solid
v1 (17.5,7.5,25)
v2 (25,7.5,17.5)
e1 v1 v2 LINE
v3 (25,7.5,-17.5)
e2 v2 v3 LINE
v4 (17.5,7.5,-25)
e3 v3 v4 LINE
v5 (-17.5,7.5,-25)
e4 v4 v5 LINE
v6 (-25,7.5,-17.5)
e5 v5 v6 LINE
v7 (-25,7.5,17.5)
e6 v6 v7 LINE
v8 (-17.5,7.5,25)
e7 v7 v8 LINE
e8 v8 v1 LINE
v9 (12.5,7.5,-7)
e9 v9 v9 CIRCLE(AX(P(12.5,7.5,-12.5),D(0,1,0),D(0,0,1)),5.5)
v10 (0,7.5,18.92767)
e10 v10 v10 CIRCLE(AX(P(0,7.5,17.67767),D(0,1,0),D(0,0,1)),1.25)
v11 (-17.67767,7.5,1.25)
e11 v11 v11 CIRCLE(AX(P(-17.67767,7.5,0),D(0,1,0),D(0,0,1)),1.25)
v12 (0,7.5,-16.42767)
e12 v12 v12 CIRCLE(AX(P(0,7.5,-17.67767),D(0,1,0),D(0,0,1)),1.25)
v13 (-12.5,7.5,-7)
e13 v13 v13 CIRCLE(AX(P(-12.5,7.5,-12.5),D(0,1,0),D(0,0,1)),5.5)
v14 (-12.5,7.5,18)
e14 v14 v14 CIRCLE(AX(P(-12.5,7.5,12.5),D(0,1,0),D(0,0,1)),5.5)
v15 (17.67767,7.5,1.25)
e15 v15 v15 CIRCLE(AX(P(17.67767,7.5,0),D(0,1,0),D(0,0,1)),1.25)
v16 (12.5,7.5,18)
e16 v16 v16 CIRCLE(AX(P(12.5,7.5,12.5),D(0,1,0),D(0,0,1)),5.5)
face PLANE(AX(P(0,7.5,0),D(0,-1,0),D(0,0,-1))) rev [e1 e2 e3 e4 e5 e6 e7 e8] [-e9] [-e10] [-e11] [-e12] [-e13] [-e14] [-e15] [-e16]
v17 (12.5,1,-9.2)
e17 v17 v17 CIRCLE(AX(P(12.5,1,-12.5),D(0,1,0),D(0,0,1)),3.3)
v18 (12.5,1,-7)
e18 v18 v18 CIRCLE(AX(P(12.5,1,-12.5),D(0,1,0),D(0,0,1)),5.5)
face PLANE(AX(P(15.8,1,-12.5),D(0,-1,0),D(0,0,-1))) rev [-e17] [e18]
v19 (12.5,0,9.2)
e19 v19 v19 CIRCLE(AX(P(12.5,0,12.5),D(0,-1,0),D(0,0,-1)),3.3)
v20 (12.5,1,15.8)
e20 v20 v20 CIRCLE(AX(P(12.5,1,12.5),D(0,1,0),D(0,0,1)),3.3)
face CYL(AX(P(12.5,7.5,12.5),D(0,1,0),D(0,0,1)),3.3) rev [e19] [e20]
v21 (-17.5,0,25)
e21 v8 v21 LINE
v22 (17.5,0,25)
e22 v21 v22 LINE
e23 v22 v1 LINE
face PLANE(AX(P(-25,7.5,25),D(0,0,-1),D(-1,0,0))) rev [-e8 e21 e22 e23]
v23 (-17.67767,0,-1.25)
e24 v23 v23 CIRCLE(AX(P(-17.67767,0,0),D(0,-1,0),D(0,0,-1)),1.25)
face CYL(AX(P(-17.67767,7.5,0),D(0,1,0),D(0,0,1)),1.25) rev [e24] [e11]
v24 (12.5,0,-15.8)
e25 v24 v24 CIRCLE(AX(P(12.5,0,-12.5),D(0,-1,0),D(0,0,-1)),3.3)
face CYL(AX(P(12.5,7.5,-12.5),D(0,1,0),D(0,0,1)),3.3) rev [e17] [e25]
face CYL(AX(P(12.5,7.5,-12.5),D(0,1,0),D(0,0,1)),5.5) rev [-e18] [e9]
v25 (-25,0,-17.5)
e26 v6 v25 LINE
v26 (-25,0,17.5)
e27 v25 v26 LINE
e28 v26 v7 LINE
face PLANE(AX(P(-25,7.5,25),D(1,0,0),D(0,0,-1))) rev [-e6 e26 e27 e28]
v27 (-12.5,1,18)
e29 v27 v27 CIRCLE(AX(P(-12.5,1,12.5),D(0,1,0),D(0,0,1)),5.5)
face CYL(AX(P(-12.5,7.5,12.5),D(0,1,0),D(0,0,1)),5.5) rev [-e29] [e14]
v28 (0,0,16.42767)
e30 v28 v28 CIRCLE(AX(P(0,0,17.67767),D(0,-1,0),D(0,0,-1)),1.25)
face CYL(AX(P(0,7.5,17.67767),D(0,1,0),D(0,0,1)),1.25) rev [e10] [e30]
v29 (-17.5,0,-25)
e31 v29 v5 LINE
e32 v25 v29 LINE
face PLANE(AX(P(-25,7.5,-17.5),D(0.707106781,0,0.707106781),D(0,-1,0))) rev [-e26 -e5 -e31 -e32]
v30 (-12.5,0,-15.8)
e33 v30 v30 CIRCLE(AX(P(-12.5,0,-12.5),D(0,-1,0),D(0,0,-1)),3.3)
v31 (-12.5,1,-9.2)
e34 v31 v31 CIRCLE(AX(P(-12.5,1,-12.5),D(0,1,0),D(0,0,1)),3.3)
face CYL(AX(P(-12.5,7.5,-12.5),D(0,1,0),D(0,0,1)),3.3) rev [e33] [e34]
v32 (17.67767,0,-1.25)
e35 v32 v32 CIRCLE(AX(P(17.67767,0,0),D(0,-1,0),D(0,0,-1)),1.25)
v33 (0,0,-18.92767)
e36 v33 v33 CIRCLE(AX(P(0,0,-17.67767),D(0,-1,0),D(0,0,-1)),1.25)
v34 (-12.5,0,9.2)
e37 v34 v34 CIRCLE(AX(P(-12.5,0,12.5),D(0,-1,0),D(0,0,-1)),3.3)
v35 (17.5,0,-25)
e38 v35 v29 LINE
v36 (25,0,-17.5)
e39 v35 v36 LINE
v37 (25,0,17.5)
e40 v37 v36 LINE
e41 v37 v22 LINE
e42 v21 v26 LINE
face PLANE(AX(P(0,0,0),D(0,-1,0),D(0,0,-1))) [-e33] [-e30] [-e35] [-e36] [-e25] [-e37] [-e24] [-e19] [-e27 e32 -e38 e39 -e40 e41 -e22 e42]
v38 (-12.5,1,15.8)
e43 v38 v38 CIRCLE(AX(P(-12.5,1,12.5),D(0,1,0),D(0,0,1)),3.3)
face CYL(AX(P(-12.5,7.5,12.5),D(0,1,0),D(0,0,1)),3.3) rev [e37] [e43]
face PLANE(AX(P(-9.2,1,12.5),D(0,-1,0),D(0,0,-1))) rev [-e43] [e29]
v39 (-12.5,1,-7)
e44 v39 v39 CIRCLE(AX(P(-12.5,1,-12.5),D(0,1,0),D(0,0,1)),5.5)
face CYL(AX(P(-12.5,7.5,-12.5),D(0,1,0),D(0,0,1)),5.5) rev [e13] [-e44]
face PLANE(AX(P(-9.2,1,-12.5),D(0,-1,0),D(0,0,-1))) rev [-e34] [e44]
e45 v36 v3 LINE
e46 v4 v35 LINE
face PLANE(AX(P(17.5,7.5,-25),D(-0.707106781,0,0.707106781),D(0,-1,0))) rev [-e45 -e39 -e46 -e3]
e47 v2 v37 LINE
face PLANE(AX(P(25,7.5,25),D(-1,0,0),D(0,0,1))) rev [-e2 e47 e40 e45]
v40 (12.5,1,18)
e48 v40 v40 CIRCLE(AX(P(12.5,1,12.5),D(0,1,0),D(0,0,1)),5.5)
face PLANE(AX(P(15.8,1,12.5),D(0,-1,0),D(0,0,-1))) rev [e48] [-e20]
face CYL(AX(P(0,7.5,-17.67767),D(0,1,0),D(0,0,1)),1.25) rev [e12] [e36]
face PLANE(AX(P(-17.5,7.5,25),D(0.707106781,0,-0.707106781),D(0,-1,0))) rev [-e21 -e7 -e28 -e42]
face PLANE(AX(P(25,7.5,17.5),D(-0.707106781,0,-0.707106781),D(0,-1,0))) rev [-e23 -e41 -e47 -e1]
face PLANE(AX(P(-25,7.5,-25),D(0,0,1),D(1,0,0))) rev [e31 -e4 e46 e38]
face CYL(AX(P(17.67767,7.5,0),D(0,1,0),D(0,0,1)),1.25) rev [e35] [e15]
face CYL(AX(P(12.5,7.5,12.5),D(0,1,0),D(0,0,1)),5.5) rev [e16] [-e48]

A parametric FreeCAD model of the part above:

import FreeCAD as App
import Part
import Sketcher
from FreeCAD import Vector


def edges_at(feature, points):
    """Names of the edges that pass closest to the given points."""
    edges = feature.Shape.Edges
    near = lambda p: min(range(len(edges)), key=lambda i: edges[i].distToShape(Part.Vertex(*p))[0])
    return sorted({f"Edge{near(p) + 1}" for p in points})

doc = App.newDocument("Part")
body = doc.addObject("PartDesign::Body", "Body")

# Sketch on XZ plane
sketch1 = doc.addObject("Sketcher::SketchObject", "Sketch")
body.addObject(sketch1)
sketch1.AttachmentSupport = (doc.XZ_Plane, [""])
sketch1.MapMode = "FlatFace"
sketch1.addGeometry(Part.LineSegment(Vector(-25, -25, 0), Vector(-25, 25, 0)), False)
sketch1.addGeometry(Part.LineSegment(Vector(-25, 25, 0), Vector(25, 25, 0)), False)
sketch1.addGeometry(Part.LineSegment(Vector(25, 25, 0), Vector(25, -25, 0)), False)
sketch1.addGeometry(Part.LineSegment(Vector(25, -25, 0), Vector(-25, -25, 0)), False)
sketch1.addConstraint(Sketcher.Constraint("Coincident", 0, 2, 1, 1))
sketch1.addConstraint(Sketcher.Constraint("Coincident", 1, 2, 2, 1))
sketch1.addConstraint(Sketcher.Constraint("Coincident", 2, 2, 3, 1))
sketch1.addConstraint(Sketcher.Constraint("Coincident", 3, 2, 0, 1))
sketch1.addConstraint(Sketcher.Constraint("Vertical", 0))
sketch1.addConstraint(Sketcher.Constraint("Horizontal", 1))
sketch1.addConstraint(Sketcher.Constraint("Vertical", 2))
sketch1.addConstraint(Sketcher.Constraint("Horizontal", 3))
sketch1.addConstraint(Sketcher.Constraint("Symmetric", 0, 2, 2, 2, -1, 1))
sketch1.addConstraint(Sketcher.Constraint("Equal", 3, 0))
sketch1.addConstraint(Sketcher.Constraint("DistanceX", 1, 1, 1, 2, 50.0))
pad1 = doc.addObject("PartDesign::Pad", "Pad")
body.addObject(pad1)
pad1.Profile = sketch1
pad1.Length = 7.5
pad1.Reversed = True

# Sketch on XZ plane
sketch2 = doc.addObject("Sketcher::SketchObject", "Sketch001")
body.addObject(sketch2)
sketch2.AttachmentSupport = (doc.XZ_Plane, [""])
sketch2.MapMode = "FlatFace"
sketch2.AttachmentOffset = App.Placement(Vector(0, 0, -7.5), App.Rotation())
sketch2.addGeometry(Part.Circle(Vector(-12.5, 12.5, 0), Vector(0, 0, 1), 3.3), False)
sketch2.addGeometry(Part.Circle(Vector(-12.5, -12.5, 0), Vector(0, 0, 1), 3.3), False)
sketch2.addGeometry(Part.Circle(Vector(12.5, -12.5, 0), Vector(0, 0, 1), 3.3), False)
sketch2.addGeometry(Part.Circle(Vector(12.5, 12.5, 0), Vector(0, 0, 1), 3.3), False)
sketch2.addConstraint(Sketcher.Constraint("Equal", 0, 1))
sketch2.addConstraint(Sketcher.Constraint("Equal", 1, 2))
sketch2.addConstraint(Sketcher.Constraint("Equal", 2, 3))
sketch2.addConstraint(Sketcher.Constraint("Symmetric", 0, 3, 2, 3, -1, 1))
sketch2.addConstraint(Sketcher.Constraint("Symmetric", 1, 3, 3, 3, -1, 1))
sketch2.addConstraint(Sketcher.Constraint("Symmetric", 1, 3, 2, 3, -2))
sketch2.addConstraint(Sketcher.Constraint("Diameter", 0, 6.6))
sketch2.addConstraint(Sketcher.Constraint("DistanceY", 1, 3, 0, 3, 25.0))
sketch2.addConstraint(Sketcher.Constraint("DistanceX", 1, 3, 2, 3, 25.0))
doc.recompute()
hole = doc.addObject("PartDesign::Hole", "Hole")
body.addObject(hole)
hole.Profile = sketch2
hole.ThreadType = "None"
hole.Diameter = 6.6
hole.DepthType = "Dimension"
hole.Depth = 7.5
hole.DrillPoint = "Flat"
hole.HoleCutType = "Counterbore"
hole.HoleCutDiameter = 11
hole.HoleCutDepth = 6.5
hole.Reversed = True

# Sketch on XZ plane
sketch3 = doc.addObject("Sketcher::SketchObject", "Sketch002")
body.addObject(sketch3)
sketch3.AttachmentSupport = (doc.XZ_Plane, [""])
sketch3.MapMode = "FlatFace"
sketch3.AttachmentOffset = App.Placement(Vector(0, 0, -7.5), App.Rotation())
sketch3.addGeometry(Part.Circle(Vector(0, -17.7, 0), Vector(0, 0, 1), 1.2), False)
sketch3.addGeometry(Part.Circle(Vector(-17.7, 0, 0), Vector(0, 0, 1), 1.2), False)
sketch3.addGeometry(Part.Circle(Vector(0, 17.7, 0), Vector(0, 0, 1), 1.2), False)
sketch3.addGeometry(Part.Circle(Vector(17.7, 0, 0), Vector(0, 0, 1), 1.2), False)
sketch3.addConstraint(Sketcher.Constraint("Equal", 0, 1))
sketch3.addConstraint(Sketcher.Constraint("Equal", 1, 2))
sketch3.addConstraint(Sketcher.Constraint("Equal", 2, 3))
sketch3.addConstraint(Sketcher.Constraint("Symmetric", 0, 3, 2, 3, -1, 1))
sketch3.addConstraint(Sketcher.Constraint("Symmetric", 1, 3, 3, 3, -1, 1))
sketch3.addConstraint(Sketcher.Constraint("PointOnObject", 0, 3, -2))
sketch3.addConstraint(Sketcher.Constraint("PointOnObject", 1, 3, -1))
sketch3.addConstraint(Sketcher.Constraint("Diameter", 0, 2.5))
sketch3.addConstraint(Sketcher.Constraint("DistanceY", 0, 3, -1, 1, 17.67767))
sketch3.addConstraint(Sketcher.Constraint("DistanceX", 1, 3, -1, 1, 17.67767))
doc.recompute()
hole2 = doc.addObject("PartDesign::Hole", "Hole001")
body.addObject(hole2)
hole2.Profile = sketch3
hole2.ThreadType = "None"
hole2.Diameter = 2.5
hole2.DepthType = "Dimension"
hole2.Depth = 7.5
hole2.DrillPoint = "Flat"
hole2.Reversed = True
doc.recompute()

chamfer = doc.addObject("PartDesign::Chamfer", "Chamfer")
body.addObject(chamfer)
chamfer.Base = (hole2, edges_at(hole2, [
    (25, 3.75, 25),
    (-25, 3.75, 25),
    (-25, 3.75, -25),
    (25, 3.75, -25),
]))
chamfer.Size = 7.5

doc.recompute()
